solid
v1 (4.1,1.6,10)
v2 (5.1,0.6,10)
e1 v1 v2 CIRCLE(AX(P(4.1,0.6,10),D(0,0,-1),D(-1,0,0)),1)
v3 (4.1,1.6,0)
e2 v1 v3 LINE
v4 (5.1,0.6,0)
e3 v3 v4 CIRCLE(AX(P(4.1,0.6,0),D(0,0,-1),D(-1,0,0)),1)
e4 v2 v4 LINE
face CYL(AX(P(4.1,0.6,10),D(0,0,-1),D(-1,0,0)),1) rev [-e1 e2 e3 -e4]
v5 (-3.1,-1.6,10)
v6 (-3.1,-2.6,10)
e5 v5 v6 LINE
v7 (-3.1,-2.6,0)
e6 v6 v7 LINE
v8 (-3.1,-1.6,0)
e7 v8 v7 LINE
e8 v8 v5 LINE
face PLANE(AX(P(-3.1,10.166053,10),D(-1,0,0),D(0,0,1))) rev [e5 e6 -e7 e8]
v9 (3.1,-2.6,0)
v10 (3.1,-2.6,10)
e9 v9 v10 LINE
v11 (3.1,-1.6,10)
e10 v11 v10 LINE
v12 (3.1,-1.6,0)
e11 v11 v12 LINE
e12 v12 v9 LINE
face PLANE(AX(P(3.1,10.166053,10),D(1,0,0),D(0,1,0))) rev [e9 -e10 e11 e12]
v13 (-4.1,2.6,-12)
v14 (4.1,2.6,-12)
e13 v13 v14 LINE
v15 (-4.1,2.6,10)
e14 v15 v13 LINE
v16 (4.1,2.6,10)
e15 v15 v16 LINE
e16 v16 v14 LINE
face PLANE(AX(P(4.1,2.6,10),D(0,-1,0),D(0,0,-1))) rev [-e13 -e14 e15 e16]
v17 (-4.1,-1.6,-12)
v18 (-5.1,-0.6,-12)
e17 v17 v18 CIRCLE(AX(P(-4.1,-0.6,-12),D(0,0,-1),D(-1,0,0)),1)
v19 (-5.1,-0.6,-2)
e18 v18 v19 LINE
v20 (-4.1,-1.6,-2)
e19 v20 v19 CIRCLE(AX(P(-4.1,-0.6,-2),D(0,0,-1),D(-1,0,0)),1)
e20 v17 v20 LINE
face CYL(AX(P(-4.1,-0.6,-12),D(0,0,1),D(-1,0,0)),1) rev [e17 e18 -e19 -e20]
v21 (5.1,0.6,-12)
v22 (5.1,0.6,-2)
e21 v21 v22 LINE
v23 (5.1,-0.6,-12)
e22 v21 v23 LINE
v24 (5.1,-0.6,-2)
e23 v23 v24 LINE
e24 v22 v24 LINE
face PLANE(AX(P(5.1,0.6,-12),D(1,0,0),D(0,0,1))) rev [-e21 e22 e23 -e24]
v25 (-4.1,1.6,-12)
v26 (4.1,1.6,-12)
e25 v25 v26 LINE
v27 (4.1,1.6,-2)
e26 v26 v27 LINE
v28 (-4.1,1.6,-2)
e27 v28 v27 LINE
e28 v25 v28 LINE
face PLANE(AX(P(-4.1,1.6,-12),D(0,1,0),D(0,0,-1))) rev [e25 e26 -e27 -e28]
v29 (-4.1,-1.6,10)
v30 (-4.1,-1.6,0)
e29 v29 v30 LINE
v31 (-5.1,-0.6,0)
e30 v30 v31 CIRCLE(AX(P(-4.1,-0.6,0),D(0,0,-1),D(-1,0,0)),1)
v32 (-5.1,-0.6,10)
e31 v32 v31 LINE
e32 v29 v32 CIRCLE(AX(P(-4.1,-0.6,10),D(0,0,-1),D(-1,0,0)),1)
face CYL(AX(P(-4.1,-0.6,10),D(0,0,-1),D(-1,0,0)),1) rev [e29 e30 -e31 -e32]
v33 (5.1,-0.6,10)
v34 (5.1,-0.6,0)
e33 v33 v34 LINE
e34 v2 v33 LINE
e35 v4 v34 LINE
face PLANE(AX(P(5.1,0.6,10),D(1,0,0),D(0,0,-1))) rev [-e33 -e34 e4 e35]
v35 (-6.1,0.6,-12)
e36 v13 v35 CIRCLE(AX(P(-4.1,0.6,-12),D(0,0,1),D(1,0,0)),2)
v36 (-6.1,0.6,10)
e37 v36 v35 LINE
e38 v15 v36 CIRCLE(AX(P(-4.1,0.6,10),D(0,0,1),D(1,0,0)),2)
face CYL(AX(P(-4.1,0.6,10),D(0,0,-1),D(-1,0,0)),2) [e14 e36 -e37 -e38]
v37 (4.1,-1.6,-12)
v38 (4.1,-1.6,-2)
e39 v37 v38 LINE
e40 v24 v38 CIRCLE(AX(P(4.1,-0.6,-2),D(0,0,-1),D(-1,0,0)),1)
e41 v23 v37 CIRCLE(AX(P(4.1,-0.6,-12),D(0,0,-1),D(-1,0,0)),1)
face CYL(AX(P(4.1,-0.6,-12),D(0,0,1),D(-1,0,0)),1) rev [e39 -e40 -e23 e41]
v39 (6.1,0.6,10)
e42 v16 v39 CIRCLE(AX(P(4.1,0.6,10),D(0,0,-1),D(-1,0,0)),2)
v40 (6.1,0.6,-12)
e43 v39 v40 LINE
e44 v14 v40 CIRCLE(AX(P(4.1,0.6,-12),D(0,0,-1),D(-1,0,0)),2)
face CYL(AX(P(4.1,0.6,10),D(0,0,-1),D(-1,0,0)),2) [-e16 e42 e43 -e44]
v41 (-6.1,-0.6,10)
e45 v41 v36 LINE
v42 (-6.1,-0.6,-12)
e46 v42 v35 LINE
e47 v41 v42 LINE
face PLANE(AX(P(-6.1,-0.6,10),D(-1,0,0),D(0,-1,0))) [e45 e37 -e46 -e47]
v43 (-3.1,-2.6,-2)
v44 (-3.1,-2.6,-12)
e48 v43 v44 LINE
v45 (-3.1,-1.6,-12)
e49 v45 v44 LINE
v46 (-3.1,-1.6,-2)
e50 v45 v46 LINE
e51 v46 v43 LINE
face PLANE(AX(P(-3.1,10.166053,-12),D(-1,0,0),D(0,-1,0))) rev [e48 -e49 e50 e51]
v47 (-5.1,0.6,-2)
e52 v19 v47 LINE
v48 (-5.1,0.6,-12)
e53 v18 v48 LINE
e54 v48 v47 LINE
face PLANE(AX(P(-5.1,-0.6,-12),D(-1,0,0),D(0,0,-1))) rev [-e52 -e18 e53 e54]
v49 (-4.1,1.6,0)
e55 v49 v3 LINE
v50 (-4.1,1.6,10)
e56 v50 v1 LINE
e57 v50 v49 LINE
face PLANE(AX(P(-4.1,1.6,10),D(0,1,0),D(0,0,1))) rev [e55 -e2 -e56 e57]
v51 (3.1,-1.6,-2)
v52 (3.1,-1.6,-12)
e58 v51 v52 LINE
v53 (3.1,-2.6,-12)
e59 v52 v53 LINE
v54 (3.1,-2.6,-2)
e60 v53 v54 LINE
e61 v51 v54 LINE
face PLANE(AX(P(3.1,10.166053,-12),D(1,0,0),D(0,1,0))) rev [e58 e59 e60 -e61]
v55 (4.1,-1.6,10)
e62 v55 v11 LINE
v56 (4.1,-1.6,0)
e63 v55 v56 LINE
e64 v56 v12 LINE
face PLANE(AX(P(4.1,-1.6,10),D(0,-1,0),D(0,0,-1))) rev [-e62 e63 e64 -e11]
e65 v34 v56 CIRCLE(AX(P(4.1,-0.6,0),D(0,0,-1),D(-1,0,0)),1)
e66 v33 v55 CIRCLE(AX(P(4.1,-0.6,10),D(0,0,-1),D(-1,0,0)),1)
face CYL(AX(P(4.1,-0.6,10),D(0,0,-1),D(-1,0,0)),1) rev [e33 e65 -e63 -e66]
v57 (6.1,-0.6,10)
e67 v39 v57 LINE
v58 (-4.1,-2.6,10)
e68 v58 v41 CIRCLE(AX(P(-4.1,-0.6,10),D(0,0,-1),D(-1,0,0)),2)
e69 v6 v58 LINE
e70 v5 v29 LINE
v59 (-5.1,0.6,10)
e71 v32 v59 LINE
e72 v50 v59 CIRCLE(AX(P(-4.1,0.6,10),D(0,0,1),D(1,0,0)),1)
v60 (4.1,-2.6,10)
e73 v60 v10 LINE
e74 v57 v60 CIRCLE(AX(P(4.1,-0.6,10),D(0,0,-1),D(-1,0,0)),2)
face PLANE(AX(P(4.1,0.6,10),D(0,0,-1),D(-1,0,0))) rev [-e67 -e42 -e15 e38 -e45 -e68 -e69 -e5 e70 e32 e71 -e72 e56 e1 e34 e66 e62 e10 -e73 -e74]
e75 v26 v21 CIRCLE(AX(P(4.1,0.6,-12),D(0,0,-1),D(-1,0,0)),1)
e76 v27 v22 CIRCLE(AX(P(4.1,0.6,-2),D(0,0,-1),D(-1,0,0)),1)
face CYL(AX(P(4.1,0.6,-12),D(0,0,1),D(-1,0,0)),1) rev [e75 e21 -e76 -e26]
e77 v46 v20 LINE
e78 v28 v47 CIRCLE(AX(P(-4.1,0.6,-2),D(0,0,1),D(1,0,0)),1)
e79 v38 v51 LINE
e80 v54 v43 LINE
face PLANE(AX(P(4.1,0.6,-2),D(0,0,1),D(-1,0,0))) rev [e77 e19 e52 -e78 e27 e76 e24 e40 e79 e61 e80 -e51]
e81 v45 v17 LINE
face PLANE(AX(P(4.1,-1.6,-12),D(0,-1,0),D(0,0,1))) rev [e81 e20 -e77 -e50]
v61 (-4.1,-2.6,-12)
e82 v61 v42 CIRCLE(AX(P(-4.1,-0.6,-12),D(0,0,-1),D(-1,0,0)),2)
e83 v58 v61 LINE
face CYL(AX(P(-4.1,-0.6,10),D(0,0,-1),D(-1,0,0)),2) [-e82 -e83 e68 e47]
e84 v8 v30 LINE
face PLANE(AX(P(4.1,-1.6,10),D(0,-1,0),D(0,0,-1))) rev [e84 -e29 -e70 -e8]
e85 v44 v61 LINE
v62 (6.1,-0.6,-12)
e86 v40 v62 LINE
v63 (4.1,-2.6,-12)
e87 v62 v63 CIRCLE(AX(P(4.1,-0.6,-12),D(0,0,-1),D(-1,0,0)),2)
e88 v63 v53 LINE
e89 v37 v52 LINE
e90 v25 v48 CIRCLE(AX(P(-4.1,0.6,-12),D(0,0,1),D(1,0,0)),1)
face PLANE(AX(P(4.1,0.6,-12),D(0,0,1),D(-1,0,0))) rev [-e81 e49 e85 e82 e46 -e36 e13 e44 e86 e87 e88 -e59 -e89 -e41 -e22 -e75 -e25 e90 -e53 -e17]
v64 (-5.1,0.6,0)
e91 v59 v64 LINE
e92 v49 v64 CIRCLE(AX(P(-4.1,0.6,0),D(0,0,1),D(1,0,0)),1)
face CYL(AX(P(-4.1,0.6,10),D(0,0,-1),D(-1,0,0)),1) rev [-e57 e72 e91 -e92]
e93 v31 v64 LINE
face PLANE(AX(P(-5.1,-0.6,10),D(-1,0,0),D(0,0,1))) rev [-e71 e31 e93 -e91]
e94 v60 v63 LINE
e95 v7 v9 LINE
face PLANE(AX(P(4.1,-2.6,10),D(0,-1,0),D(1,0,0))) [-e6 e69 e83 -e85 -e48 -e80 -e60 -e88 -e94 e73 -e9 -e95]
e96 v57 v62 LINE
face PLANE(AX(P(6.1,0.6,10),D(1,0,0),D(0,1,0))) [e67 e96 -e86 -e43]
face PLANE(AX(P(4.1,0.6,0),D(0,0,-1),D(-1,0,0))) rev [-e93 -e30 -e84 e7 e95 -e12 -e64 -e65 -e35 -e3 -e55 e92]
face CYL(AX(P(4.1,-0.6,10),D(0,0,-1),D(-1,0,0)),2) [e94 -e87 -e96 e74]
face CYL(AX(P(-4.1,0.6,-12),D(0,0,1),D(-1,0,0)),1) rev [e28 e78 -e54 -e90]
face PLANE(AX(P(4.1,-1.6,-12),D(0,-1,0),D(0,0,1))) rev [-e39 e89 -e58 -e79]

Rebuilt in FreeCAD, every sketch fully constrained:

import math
import FreeCAD as App
import Part
import Sketcher

doc = App.newDocument("Part")
body = doc.addObject("PartDesign::Body", "Body")

# Sketch on XY plane
sketch1 = body.newObject("Sketcher::SketchObject", "Sketch")
sketch1.AttachmentSupport = (doc.getObject("XY_Plane"), [""])
sketch1.MapMode = "FlatFace"
sketch1.addGeometry([
    Part.LineSegment(App.Vector(6.1, -0.6, 0), App.Vector(6.1, 0.6, 0)),  # 0
    Part.ArcOfCircle(Part.Circle(App.Vector(4.1, 0.6, 0), App.Vector(0, 0, 1), 2), math.radians(0), math.radians(90)),  # 1
    Part.LineSegment(App.Vector(4.1, 2.6, 0), App.Vector(-4.1, 2.6, 0)),  # 2
    Part.ArcOfCircle(Part.Circle(App.Vector(-4.1, 0.6, 0), App.Vector(0, 0, 1), 2), math.radians(90), math.radians(180)),  # 3
    Part.LineSegment(App.Vector(-6.1, 0.6, 0), App.Vector(-6.1, -0.6, 0)),  # 4
    Part.ArcOfCircle(Part.Circle(App.Vector(-4.1, -0.6, 0), App.Vector(0, 0, 1), 2), math.radians(-180), math.radians(-90)),  # 5
    Part.LineSegment(App.Vector(-4.1, -2.6, 0), App.Vector(4.1, -2.6, 0)),  # 6
    Part.ArcOfCircle(Part.Circle(App.Vector(4.1, -0.6, 0), App.Vector(0, 0, 1), 2), math.radians(-90), math.radians(0)),  # 7
    Part.LineSegment(App.Vector(-4.1, 1.6, 0), App.Vector(4.1, 1.6, 0)),  # 8
    Part.ArcOfCircle(Part.Circle(App.Vector(4.1, 0.6, 0), App.Vector(0, 0, 1), 1), math.radians(0), math.radians(90)),  # 9
    Part.LineSegment(App.Vector(5.1, 0.6, 0), App.Vector(5.1, -0.6, 0)),  # 10
    Part.ArcOfCircle(Part.Circle(App.Vector(4.1, -0.6, 0), App.Vector(0, 0, 1), 1), math.radians(-90), math.radians(0)),  # 11
    Part.LineSegment(App.Vector(4.1, -1.6, 0), App.Vector(-4.1, -1.6, 0)),  # 12
    Part.ArcOfCircle(Part.Circle(App.Vector(-4.1, -0.6, 0), App.Vector(0, 0, 1), 1), math.radians(-180), math.radians(-90)),  # 13
    Part.LineSegment(App.Vector(-5.1, -0.6, 0), App.Vector(-5.1, 0.6, 0)),  # 14
    Part.ArcOfCircle(Part.Circle(App.Vector(-4.1, 0.6, 0), App.Vector(0, 0, 1), 1), math.radians(90), math.radians(180)),  # 15
], False)
sketch1.addConstraint([
    Sketcher.Constraint("Tangent", 0, 2, 1, 1),
    Sketcher.Constraint("Tangent", 1, 2, 2, 1),
    Sketcher.Constraint("Tangent", 2, 2, 3, 1),
    Sketcher.Constraint("Tangent", 3, 2, 4, 1),
    Sketcher.Constraint("Tangent", 4, 2, 5, 1),
    Sketcher.Constraint("Tangent", 5, 2, 6, 1),
    Sketcher.Constraint("Tangent", 6, 2, 7, 1),
    Sketcher.Constraint("Tangent", 7, 2, 0, 1),
    Sketcher.Constraint("Tangent", 8, 2, 9, 2),
    Sketcher.Constraint("Tangent", 9, 1, 10, 1),
    Sketcher.Constraint("Tangent", 10, 2, 11, 2),
    Sketcher.Constraint("Tangent", 11, 1, 12, 1),
    Sketcher.Constraint("Tangent", 12, 2, 13, 2),
    Sketcher.Constraint("Tangent", 13, 1, 14, 1),
    Sketcher.Constraint("Tangent", 14, 2, 15, 2),
    Sketcher.Constraint("Tangent", 15, 1, 8, 1),
    Sketcher.Constraint("Vertical", 0),
    Sketcher.Constraint("Horizontal", 2),
    Sketcher.Constraint("Vertical", 4),
    Sketcher.Constraint("Horizontal", 6),
    Sketcher.Constraint("Horizontal", 8),
    Sketcher.Constraint("Vertical", 10),
    Sketcher.Constraint("Horizontal", 12),
    Sketcher.Constraint("Vertical", 14),
    Sketcher.Constraint("Coincident", 9, 3, 1, 3),
    Sketcher.Constraint("Coincident", 11, 3, 7, 3),
    Sketcher.Constraint("Coincident", 13, 3, 5, 3),
    Sketcher.Constraint("Equal", 1, 3),
    Sketcher.Constraint("Equal", 3, 5),
    Sketcher.Constraint("Equal", 5, 7),
    Sketcher.Constraint("Equal", 13, 15),
    Sketcher.Constraint("Symmetric", 1, 3, 5, 3, -1, 1),
    Sketcher.Constraint("Radius", 1, 2.0),
    Sketcher.Constraint("Radius", 9, 1.0),
    Sketcher.Constraint("DistanceX", 2, 2, 2, 1, 8.2),
    Sketcher.Constraint("DistanceY", 0, 1, 0, 2, 1.2),
])
pad1 = body.newObject("PartDesign::Pad", "Pad")
pad1.Profile = sketch1
pad1.Length = 10

# Sketch on XY plane
sketch2 = body.newObject("Sketcher::SketchObject", "Sketch001")
sketch2.AttachmentSupport = (doc.getObject("XY_Plane"), [""])
sketch2.MapMode = "FlatFace"
sketch2.addGeometry([
    Part.LineSegment(App.Vector(6.1, 0.6, 0), App.Vector(6.1, -0.6, 0)),  # 0
    Part.ArcOfCircle(Part.Circle(App.Vector(4.1, -0.6, 0), App.Vector(0, 0, 1), 2), math.radians(-90), math.radians(0)),  # 1
    Part.LineSegment(App.Vector(4.1, -2.6, 0), App.Vector(-4.1, -2.6, 0)),  # 2
    Part.ArcOfCircle(Part.Circle(App.Vector(-4.1, -0.6, 0), App.Vector(0, 0, 1), 2), math.radians(-180), math.radians(-90)),  # 3
    Part.LineSegment(App.Vector(-6.1, -0.6, 0), App.Vector(-6.1, 0.6, 0)),  # 4
    Part.ArcOfCircle(Part.Circle(App.Vector(-4.1, 0.6, 0), App.Vector(0, 0, 1), 2), math.radians(90), math.radians(180)),  # 5
    Part.LineSegment(App.Vector(-4.1, 2.6, 0), App.Vector(4.1, 2.6, 0)),  # 6
    Part.ArcOfCircle(Part.Circle(App.Vector(4.1, 0.6, 0), App.Vector(0, 0, 1), 2), math.radians(0), math.radians(90)),  # 7
], False)
sketch2.addConstraint([
    Sketcher.Constraint("Tangent", 0, 2, 1, 2),
    Sketcher.Constraint("Tangent", 1, 1, 2, 1),
    Sketcher.Constraint("Tangent", 2, 2, 3, 2),
    Sketcher.Constraint("Tangent", 3, 1, 4, 1),
    Sketcher.Constraint("Tangent", 4, 2, 5, 2),
    Sketcher.Constraint("Tangent", 5, 1, 6, 1),
    Sketcher.Constraint("Tangent", 6, 2, 7, 2),
    Sketcher.Constraint("Tangent", 7, 1, 0, 1),
    Sketcher.Constraint("Vertical", 0),
    Sketcher.Constraint("Horizontal", 2),
    Sketcher.Constraint("Vertical", 4),
    Sketcher.Constraint("Horizontal", 6),
    Sketcher.Constraint("Equal", 1, 3),
    Sketcher.Constraint("Equal", 3, 5),
    Sketcher.Constraint("Equal", 5, 7),
    Sketcher.Constraint("Symmetric", 1, 3, 5, 3, -1, 1),
    Sketcher.Constraint("Radius", 1, 2.0),
    Sketcher.Constraint("DistanceX", 2, 2, 2, 1, 8.2),
    Sketcher.Constraint("DistanceY", 0, 2, 0, 1, 1.2),
])
pad2 = body.newObject("PartDesign::Pad", "Pad001")
pad2.Profile = sketch2
pad2.Length = 1
pad2.Reversed = True
doc.recompute()

datumplane = body.newObject("PartDesign::Plane", "DatumPlane")
datumplane.AttachmentSupport = (doc.getObject("XY_Plane"), [""])
datumplane.MapMode = "FlatFace"
datumplane.AttachmentOffset = App.Placement(App.Vector(0, 0, -1), App.Rotation())
mirrored = body.newObject("PartDesign::Mirrored", "Mirrored")
mirrored.Originals = [pad1, pad2]
mirrored.MirrorPlane = (datumplane, [""])
body.Tip = mirrored

# Sketch on XZ plane
sketch3 = body.newObject("Sketcher::SketchObject", "Sketch002")
sketch3.AttachmentSupport = (doc.getObject("XZ_Plane"), [""])
sketch3.MapMode = "FlatFace"
sketch3.AttachmentOffset = App.Placement(App.Vector(0, 0, 2.6), App.Rotation())
sketch3.addGeometry([
    Part.LineSegment(App.Vector(-3, -2, 0), App.Vector(-3, -12, 0)),  # 0
    Part.LineSegment(App.Vector(-3, -12, 0), App.Vector(3, -12, 0)),  # 1
    Part.LineSegment(App.Vector(3, -12, 0), App.Vector(3, -2, 0)),  # 2
    Part.LineSegment(App.Vector(3, -2, 0), App.Vector(-3, -2, 0)),  # 3
    Part.LineSegment(App.Vector(-3, 10, 0), App.Vector(-3, 0, 0)),  # 4
    Part.LineSegment(App.Vector(-3, 0, 0), App.Vector(3, 0, 0)),  # 5
    Part.LineSegment(App.Vector(3, 0, 0), App.Vector(3, 10, 0)),  # 6
    Part.LineSegment(App.Vector(3, 10, 0), App.Vector(-3, 10, 0)),  # 7
], False)
sketch3.addConstraint([
    Sketcher.Constraint("Coincident", 0, 2, 1, 1),
    Sketcher.Constraint("Coincident", 1, 2, 2, 1),
    Sketcher.Constraint("Coincident", 2, 2, 3, 1),
    Sketcher.Constraint("Coincident", 3, 2, 0, 1),
    Sketcher.Constraint("Coincident", 4, 2, 5, 1),
    Sketcher.Constraint("Coincident", 5, 2, 6, 1),
    Sketcher.Constraint("Coincident", 6, 2, 7, 1),
    Sketcher.Constraint("Coincident", 7, 2, 4, 1),
    Sketcher.Constraint("Vertical", 0),
    Sketcher.Constraint("Horizontal", 1),
    Sketcher.Constraint("Vertical", 2),
    Sketcher.Constraint("Horizontal", 3),
    Sketcher.Constraint("Vertical", 4),
    Sketcher.Constraint("Horizontal", 5),
    Sketcher.Constraint("Vertical", 6),
    Sketcher.Constraint("Horizontal", 7),
    Sketcher.Constraint("Symmetric", 4, 2, 5, 2, -1, 1),
    Sketcher.Constraint("Vertical", 3, 2, 4, 2),
    Sketcher.Constraint("Vertical", 2, 2, 5, 2),
    Sketcher.Constraint("Equal", 2, 4),
    Sketcher.Constraint("DistanceY", 0, 2, 0, 1, 10.0),
    Sketcher.Constraint("DistanceX", 1, 1, 1, 2, 6.2),
    Sketcher.Constraint("DistanceY", 0, 2, -1, 1, 12.0),
])
pocket1 = body.newObject("PartDesign::Pocket", "Pocket")
pocket1.Profile = sketch3
pocket1.Length = 1

doc.recompute()
